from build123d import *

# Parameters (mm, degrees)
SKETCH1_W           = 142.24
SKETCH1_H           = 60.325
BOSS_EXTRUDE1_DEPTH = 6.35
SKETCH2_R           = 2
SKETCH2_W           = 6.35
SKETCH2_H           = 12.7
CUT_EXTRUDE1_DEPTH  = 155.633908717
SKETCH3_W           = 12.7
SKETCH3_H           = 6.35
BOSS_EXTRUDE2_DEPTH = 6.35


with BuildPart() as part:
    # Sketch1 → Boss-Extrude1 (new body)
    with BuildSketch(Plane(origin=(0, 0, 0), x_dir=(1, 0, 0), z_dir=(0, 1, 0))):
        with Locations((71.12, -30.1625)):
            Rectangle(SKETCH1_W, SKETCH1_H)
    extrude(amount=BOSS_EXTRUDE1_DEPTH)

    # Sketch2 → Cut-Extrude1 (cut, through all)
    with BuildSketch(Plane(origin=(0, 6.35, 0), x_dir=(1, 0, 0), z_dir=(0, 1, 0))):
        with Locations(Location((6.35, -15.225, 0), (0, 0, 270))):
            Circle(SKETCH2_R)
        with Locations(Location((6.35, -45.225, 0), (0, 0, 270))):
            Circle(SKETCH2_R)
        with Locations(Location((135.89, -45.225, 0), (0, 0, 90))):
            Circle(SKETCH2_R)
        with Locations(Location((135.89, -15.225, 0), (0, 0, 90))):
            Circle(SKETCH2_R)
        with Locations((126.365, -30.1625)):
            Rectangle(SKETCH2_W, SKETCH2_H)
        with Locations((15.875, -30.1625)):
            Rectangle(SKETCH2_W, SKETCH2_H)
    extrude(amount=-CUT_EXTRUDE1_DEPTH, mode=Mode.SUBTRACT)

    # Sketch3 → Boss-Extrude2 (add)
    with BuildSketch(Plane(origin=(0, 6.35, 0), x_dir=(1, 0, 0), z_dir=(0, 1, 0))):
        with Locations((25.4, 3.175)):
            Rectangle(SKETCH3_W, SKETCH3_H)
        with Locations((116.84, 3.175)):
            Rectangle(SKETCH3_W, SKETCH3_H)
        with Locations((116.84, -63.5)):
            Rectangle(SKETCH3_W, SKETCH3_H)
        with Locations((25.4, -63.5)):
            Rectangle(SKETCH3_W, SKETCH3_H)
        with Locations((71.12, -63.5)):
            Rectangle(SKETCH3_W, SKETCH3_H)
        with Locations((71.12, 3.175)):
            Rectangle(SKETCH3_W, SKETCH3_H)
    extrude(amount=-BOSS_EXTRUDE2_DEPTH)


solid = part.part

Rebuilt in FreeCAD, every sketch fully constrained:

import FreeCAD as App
import Part
import Sketcher
Q = App.Units.Quantity


def add_polygon(sketch, points):
    """Adds a closed chain of lines whose ends are joined by coincident constraints."""
    first, n = sketch.GeometryCount, len(points)
    for a, b in zip(points, points[1:] + points[:1]):
        sketch.addGeometry(Part.LineSegment(App.Vector(*a, 0), App.Vector(*b, 0)), False)
    for i in range(n):
        sketch.addConstraint(Sketcher.Constraint("Coincident", first + i, 2, first + (i + 1) % n, 1))

doc = App.newDocument("Part")
body = doc.addObject("PartDesign::Body", "Body")

sketch1 = doc.addObject("Sketcher::SketchObject", "Sketch")
body.addObject(sketch1)
sketch1.AttachmentSupport = (doc.XZ_Plane, [""])
sketch1.MapMode = "FlatFace"
add_polygon(sketch1, [(0, 0), (0, 60.325), (142.24, 60.325), (142.24, 0)])
sketch1.addConstraint([
    Sketcher.Constraint("Vertical", 0),
    Sketcher.Constraint("Horizontal", 1),
    Sketcher.Constraint("Vertical", 2),
    Sketcher.Constraint("Horizontal", 3),
    Sketcher.Constraint("Coincident", 3, 2, -1, 1),
    Sketcher.Constraint("DistanceX", 1, 1, 1, 2, Q("5.6 in")),
    Sketcher.Constraint("DistanceY", 0, 1, 0, 2, Q("2.375 in")),
])
pad1 = doc.addObject("PartDesign::Pad", "Pad")
body.addObject(pad1)
pad1.Profile = sketch1
pad1.Length = Q("0.25 in")
pad1.Reversed = True

sketch2 = doc.addObject("Sketcher::SketchObject", "Sketch001")
body.addObject(sketch2)
sketch2.AttachmentSupport = (doc.XZ_Plane, [""])
sketch2.MapMode = "FlatFace"
sketch2.AttachmentOffset = App.Placement(App.Vector(0, 0, -0.25 * 25.4), App.Rotation())
sketch2.addGeometry(Part.Circle(App.Vector(6.35, 15.225, 0), App.Vector(0, 0, 1), 2), False)
sketch2.addGeometry(Part.Circle(App.Vector(6.35, 45.225, 0), App.Vector(0, 0, 1), 2), False)
sketch2.addGeometry(Part.Circle(App.Vector(135.89, 45.225, 0), App.Vector(0, 0, 1), 2), False)
sketch2.addGeometry(Part.Circle(App.Vector(135.89, 15.225, 0), App.Vector(0, 0, 1), 2), False)
add_polygon(sketch2, [(123.19, 23.8125), (123.19, 36.5125), (129.54, 36.5125), (129.54, 23.8125)])
add_polygon(sketch2, [(12.7, 23.8125), (12.7, 36.5125), (19.05, 36.5125), (19.05, 23.8125)])
sketch2.addConstraint([
    Sketcher.Constraint("Vertical", 4),
    Sketcher.Constraint("Horizontal", 5),
    Sketcher.Constraint("Vertical", 6),
    Sketcher.Constraint("Horizontal", 7),
    Sketcher.Constraint("Vertical", 8),
    Sketcher.Constraint("Horizontal", 9),
    Sketcher.Constraint("Vertical", 10),
    Sketcher.Constraint("Horizontal", 11),
    Sketcher.Constraint("Equal", 0, 1),
    Sketcher.Constraint("Equal", 1, 2),
    Sketcher.Constraint("Equal", 2, 3),
    Sketcher.Constraint("Horizontal", 1, 3, 2, 3),
    Sketcher.Constraint("Horizontal", 0, 3, 3, 3),
    Sketcher.Constraint("Horizontal", 5, 2, 8, 2),
    Sketcher.Constraint("Horizontal", 7, 2, 10, 2),
    Sketcher.Constraint("Vertical", 0, 3, 1, 3),
    Sketcher.Constraint("Vertical", 2, 3, 3, 3),
    Sketcher.Constraint("Equal", 7, 9),
    Sketcher.Constraint("DistanceY", 4, 1, 4, 2, Q("0.5 in")),
    Sketcher.Constraint("DistanceX", 5, 1, 5, 2, Q("0.25 in")),
    Sketcher.Constraint("DistanceX", -1, 1, 5, 2, Q("5.1 in")),
    Sketcher.Constraint("DistanceX", -1, 1, 8, 2, Q("0.5 in")),
    Sketcher.Constraint("DistanceX", 1, 3, 2, 3, Q("5.1 in")),
    Sketcher.Constraint("DistanceX", 4, 2, 2, 3, Q("0.5 in")),
    Sketcher.Constraint("Diameter", 0, 4.0),
    Sketcher.Constraint("DistanceY", -1, 1, 4, 2, Q("1.4375 in")),
    Sketcher.Constraint("DistanceY", -1, 1, 0, 3, 15.225),
    Sketcher.Constraint("DistanceY", -1, 1, 1, 3, 45.225),
])
pocket1 = doc.addObject("PartDesign::Pocket", "Pocket")
body.addObject(pocket1)
pocket1.Profile = sketch2
pocket1.Type = "ThroughAll"
pocket1.Reversed = True

sketch3 = doc.addObject("Sketcher::SketchObject", "Sketch002")
body.addObject(sketch3)
sketch3.AttachmentSupport = (doc.XZ_Plane, [""])
sketch3.MapMode = "FlatFace"
sketch3.AttachmentOffset = App.Placement(App.Vector(0, 0, -0.25 * 25.4), App.Rotation())
add_polygon(sketch3, [(19.05, -6.35), (19.05, 0), (31.75, 0), (31.75, -6.35)])
add_polygon(sketch3, [(110.49, -6.35), (110.49, 0), (123.19, 0), (123.19, -6.35)])
add_polygon(sketch3, [(110.49, 60.325), (110.49, 66.675), (123.19, 66.675), (123.19, 60.325)])
add_polygon(sketch3, [(19.05, 60.325), (19.05, 66.675), (31.75, 66.675), (31.75, 60.325)])
add_polygon(sketch3, [(64.77, 60.325), (64.77, 66.675), (77.47, 66.675), (77.47, 60.325)])
add_polygon(sketch3, [(64.77, -6.35), (64.77, 0), (77.47, 0), (77.47, -6.35)])
sketch3.addConstraint([
    Sketcher.Constraint("Vertical", 0),
    Sketcher.Constraint("Horizontal", 1),
    Sketcher.Constraint("Vertical", 2),
    Sketcher.Constraint("Horizontal", 3),
    Sketcher.Constraint("Vertical", 4),
    Sketcher.Constraint("Horizontal", 5),
    Sketcher.Constraint("Vertical", 6),
    Sketcher.Constraint("Horizontal", 7),
    Sketcher.Constraint("Vertical", 8),
    Sketcher.Constraint("Horizontal", 9),
    Sketcher.Constraint("Vertical", 10),
    Sketcher.Constraint("Horizontal", 11),
    Sketcher.Constraint("Vertical", 12),
    Sketcher.Constraint("Horizontal", 13),
    Sketcher.Constraint("Vertical", 14),
    Sketcher.Constraint("Horizontal", 15),
    Sketcher.Constraint("Vertical", 16),
    Sketcher.Constraint("Horizontal", 17),
    Sketcher.Constraint("Vertical", 18),
    Sketcher.Constraint("Horizontal", 19),
    Sketcher.Constraint("Vertical", 20),
    Sketcher.Constraint("Horizontal", 21),
    Sketcher.Constraint("Vertical", 22),
    Sketcher.Constraint("Horizontal", 23),
    Sketcher.Constraint("PointOnObject", 0, 2, -1),
    Sketcher.Constraint("PointOnObject", 4, 2, -1),
    Sketcher.Constraint("PointOnObject", 20, 2, -1),
    Sketcher.Constraint("Horizontal", 3, 2, 6, 2),
    Sketcher.Constraint("Horizontal", 9, 2, 12, 2),
    Sketcher.Constraint("Horizontal", 11, 2, 14, 2),
    Sketcher.Constraint("Horizontal", 13, 2, 16, 2),
    Sketcher.Constraint("Horizontal", 15, 2, 18, 2),
    Sketcher.Constraint("Horizontal", 7, 2, 22, 2),
    Sketcher.Constraint("Vertical", 7, 2, 8, 2),
    Sketcher.Constraint("Vertical", 6, 2, 9, 2),
    Sketcher.Constraint("Vertical", 3, 2, 12, 2),
    Sketcher.Constraint("Vertical", 2, 2, 13, 2),
    Sketcher.Constraint("Vertical", 19, 2, 20, 2),
    Sketcher.Constraint("Vertical", 18, 2, 21, 2),
    Sketcher.Constraint("Equal", 3, 5),
    Sketcher.Constraint("Equal", 15, 17),
    Sketcher.Constraint("Equal", 6, 8),
    Sketcher.Constraint("DistanceX", 1, 1, 1, 2, Q("0.5 in")),
    Sketcher.Constraint("DistanceY", 0, 1, 0, 2, Q("0.25 in")),
    Sketcher.Constraint("DistanceX", 1, 2, 4, 2, Q("3.1 in")),
    Sketcher.Constraint("DistanceX", 13, 2, 16, 2, Q("1.3 in")),
    Sketcher.Constraint("DistanceX", -1, 1, 0, 2, Q("0.75 in")),
    Sketcher.Constraint("DistanceY", -1, 1, 8, 2, Q("2.625 in")),
])
pad2 = doc.addObject("PartDesign::Pad", "Pad001")
body.addObject(pad2)
pad2.Profile = sketch3
pad2.Length = Q("0.25 in")

doc.recompute()
